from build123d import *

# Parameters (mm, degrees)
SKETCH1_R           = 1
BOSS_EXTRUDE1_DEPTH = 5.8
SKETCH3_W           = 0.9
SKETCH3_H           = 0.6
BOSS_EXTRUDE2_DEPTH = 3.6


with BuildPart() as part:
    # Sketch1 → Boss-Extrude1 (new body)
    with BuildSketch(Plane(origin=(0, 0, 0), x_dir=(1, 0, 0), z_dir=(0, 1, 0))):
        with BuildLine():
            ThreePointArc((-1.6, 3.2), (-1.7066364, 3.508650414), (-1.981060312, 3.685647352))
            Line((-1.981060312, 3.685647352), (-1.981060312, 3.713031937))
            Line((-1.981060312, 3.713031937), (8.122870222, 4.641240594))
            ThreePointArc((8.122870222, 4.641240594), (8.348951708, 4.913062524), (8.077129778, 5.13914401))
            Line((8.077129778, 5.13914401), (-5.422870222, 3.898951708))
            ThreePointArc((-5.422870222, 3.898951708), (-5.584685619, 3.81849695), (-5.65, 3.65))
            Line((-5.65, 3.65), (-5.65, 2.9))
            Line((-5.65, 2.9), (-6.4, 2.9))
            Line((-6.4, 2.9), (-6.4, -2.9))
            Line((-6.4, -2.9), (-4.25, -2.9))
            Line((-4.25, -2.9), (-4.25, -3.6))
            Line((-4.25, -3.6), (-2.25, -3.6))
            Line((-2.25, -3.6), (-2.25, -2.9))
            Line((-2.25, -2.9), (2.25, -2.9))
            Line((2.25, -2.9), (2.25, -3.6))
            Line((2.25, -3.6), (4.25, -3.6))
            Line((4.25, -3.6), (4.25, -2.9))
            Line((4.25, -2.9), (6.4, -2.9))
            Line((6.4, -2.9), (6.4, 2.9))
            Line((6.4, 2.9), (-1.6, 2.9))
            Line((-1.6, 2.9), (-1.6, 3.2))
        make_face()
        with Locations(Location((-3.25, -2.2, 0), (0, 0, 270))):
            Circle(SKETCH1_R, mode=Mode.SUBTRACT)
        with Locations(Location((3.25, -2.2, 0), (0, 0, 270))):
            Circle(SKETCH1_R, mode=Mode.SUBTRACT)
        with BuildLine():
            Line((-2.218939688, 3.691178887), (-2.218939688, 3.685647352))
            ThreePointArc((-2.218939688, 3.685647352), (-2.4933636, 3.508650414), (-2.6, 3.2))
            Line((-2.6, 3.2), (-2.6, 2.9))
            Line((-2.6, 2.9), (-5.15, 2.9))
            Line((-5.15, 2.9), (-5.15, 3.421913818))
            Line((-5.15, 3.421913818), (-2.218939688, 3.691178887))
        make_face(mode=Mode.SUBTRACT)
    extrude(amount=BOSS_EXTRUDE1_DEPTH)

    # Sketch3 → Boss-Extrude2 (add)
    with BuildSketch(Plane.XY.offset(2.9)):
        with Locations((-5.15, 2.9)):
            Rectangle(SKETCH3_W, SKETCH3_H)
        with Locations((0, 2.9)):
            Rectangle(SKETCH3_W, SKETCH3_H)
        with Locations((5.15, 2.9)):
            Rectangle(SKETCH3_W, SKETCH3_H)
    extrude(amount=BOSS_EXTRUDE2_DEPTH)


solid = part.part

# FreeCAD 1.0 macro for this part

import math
import FreeCAD as App
import Part
import Sketcher

V = App.Vector


def add_polygon(sketch, points):
    """Adds a closed chain of lines whose ends are joined by coincident constraints."""
    first, n = sketch.GeometryCount, len(points)
    for a, b in zip(points, points[1:] + points[:1]):
        sketch.addGeometry(Part.LineSegment(App.Vector(*a, 0), App.Vector(*b, 0)), False)
    for i in range(n):
        sketch.addConstraint(Sketcher.Constraint("Coincident", first + i, 2, first + (i + 1) % n, 1))

doc = App.newDocument("Part")
body = doc.addObject("PartDesign::Body", "Body")

# Sketch on XZ plane
sketch1 = body.newObject("Sketcher::SketchObject", "Sketch")
sketch1.AttachmentSupport = (doc.getObject("XZ_Plane"), [""])
sketch1.MapMode = "FlatFace"
sketch1.addGeometry(Part.ArcOfCircle(Part.Circle(V(-2.1, -3.2, 0), V(0, 0, 1), 0.5), math.radians(-76), math.radians(0)), False)
sketch1.addGeometry(Part.LineSegment(V(-1.981, -3.686, 0), V(-1.981, -3.713, 0)), False)
sketch1.addGeometry(Part.LineSegment(V(-1.981, -3.713, 0), V(8.123, -4.641, 0)), False)
sketch1.addGeometry(Part.ArcOfCircle(Part.Circle(V(8.1, -4.89, 0), V(0, 0, 1), 0.25), math.radians(-95), math.radians(85)), False)
sketch1.addGeometry(Part.LineSegment(V(8.077, -5.139, 0), V(-5.423, -3.899, 0)), False)
sketch1.addGeometry(Part.ArcOfCircle(Part.Circle(V(-5.4, -3.65, 0), V(0, 0, 1), 0.25), math.radians(180), math.radians(265)), False)
sketch1.addGeometry(Part.LineSegment(V(-5.65, -3.65, 0), V(-5.65, -2.9, 0)), False)
sketch1.addGeometry(Part.LineSegment(V(-5.65, -2.9, 0), V(-6.4, -2.9, 0)), False)
sketch1.addGeometry(Part.LineSegment(V(-6.4, -2.9, 0), V(-6.4, 2.9, 0)), False)
sketch1.addGeometry(Part.LineSegment(V(-6.4, 2.9, 0), V(-4.25, 2.9, 0)), False)
sketch1.addGeometry(Part.LineSegment(V(-4.25, 2.9, 0), V(-4.25, 3.6, 0)), False)
sketch1.addGeometry(Part.LineSegment(V(-4.25, 3.6, 0), V(-2.25, 3.6, 0)), False)
sketch1.addGeometry(Part.LineSegment(V(-2.25, 3.6, 0), V(-2.25, 2.9, 0)), False)
sketch1.addGeometry(Part.LineSegment(V(-2.25, 2.9, 0), V(2.25, 2.9, 0)), False)
sketch1.addGeometry(Part.LineSegment(V(2.25, 2.9, 0), V(2.25, 3.6, 0)), False)
sketch1.addGeometry(Part.LineSegment(V(2.25, 3.6, 0), V(4.25, 3.6, 0)), False)
sketch1.addGeometry(Part.LineSegment(V(4.25, 3.6, 0), V(4.25, 2.9, 0)), False)
sketch1.addGeometry(Part.LineSegment(V(4.25, 2.9, 0), V(6.4, 2.9, 0)), False)
sketch1.addGeometry(Part.LineSegment(V(6.4, 2.9, 0), V(6.4, -2.9, 0)), False)
sketch1.addGeometry(Part.LineSegment(V(6.4, -2.9, 0), V(-1.6, -2.9, 0)), False)
sketch1.addGeometry(Part.LineSegment(V(-1.6, -2.9, 0), V(-1.6, -3.2, 0)), False)
sketch1.addGeometry(Part.Circle(V(-3.25, 2.2, 0), V(0, 0, 1), 1), False)
sketch1.addGeometry(Part.Circle(V(3.25, 2.2, 0), V(0, 0, 1), 1), False)
sketch1.addGeometry(Part.LineSegment(V(-5.15, -3.422, 0), V(-2.219, -3.691, 0)), False)
sketch1.addGeometry(Part.LineSegment(V(-2.219, -3.691, 0), V(-2.219, -3.686, 0)), False)
sketch1.addGeometry(Part.ArcOfCircle(Part.Circle(V(-2.1, -3.2, 0), V(0, 0, 1), 0.5), math.radians(180), math.radians(256)), False)
sketch1.addGeometry(Part.LineSegment(V(-2.6, -3.2, 0), V(-2.6, -2.9, 0)), False)
sketch1.addGeometry(Part.LineSegment(V(-2.6, -2.9, 0), V(-5.15, -2.9, 0)), False)
sketch1.addGeometry(Part.LineSegment(V(-5.15, -2.9, 0), V(-5.15, -3.422, 0)), False)
sketch1.addConstraint(Sketcher.Constraint("Coincident", 0, 1, 1, 1))
sketch1.addConstraint(Sketcher.Constraint("Coincident", 1, 2, 2, 1))
sketch1.addConstraint(Sketcher.Constraint("Tangent", 2, 2, 3, 2))
sketch1.addConstraint(Sketcher.Constraint("Tangent", 3, 1, 4, 1))
sketch1.addConstraint(Sketcher.Constraint("Tangent", 4, 2, 5, 2))
sketch1.addConstraint(Sketcher.Constraint("Tangent", 5, 1, 6, 1))
sketch1.addConstraint(Sketcher.Constraint("Coincident", 6, 2, 7, 1))
sketch1.addConstraint(Sketcher.Constraint("Coincident", 7, 2, 8, 1))
sketch1.addConstraint(Sketcher.Constraint("Coincident", 8, 2, 9, 1))
sketch1.addConstraint(Sketcher.Constraint("Coincident", 9, 2, 10, 1))
sketch1.addConstraint(Sketcher.Constraint("Coincident", 10, 2, 11, 1))
sketch1.addConstraint(Sketcher.Constraint("Coincident", 11, 2, 12, 1))
sketch1.addConstraint(Sketcher.Constraint("Coincident", 12, 2, 13, 1))
sketch1.addConstraint(Sketcher.Constraint("Coincident", 13, 2, 14, 1))
sketch1.addConstraint(Sketcher.Constraint("Coincident", 14, 2, 15, 1))
sketch1.addConstraint(Sketcher.Constraint("Coincident", 15, 2, 16, 1))
sketch1.addConstraint(Sketcher.Constraint("Coincident", 16, 2, 17, 1))
sketch1.addConstraint(Sketcher.Constraint("Coincident", 17, 2, 18, 1))
sketch1.addConstraint(Sketcher.Constraint("Coincident", 18, 2, 19, 1))
sketch1.addConstraint(Sketcher.Constraint("Coincident", 19, 2, 20, 1))
sketch1.addConstraint(Sketcher.Constraint("Tangent", 20, 2, 0, 2))
sketch1.addConstraint(Sketcher.Constraint("Coincident", 23, 2, 24, 1))
sketch1.addConstraint(Sketcher.Constraint("Coincident", 24, 2, 25, 2))
sketch1.addConstraint(Sketcher.Constraint("Tangent", 25, 1, 26, 1))
sketch1.addConstraint(Sketcher.Constraint("Coincident", 26, 2, 27, 1))
sketch1.addConstraint(Sketcher.Constraint("Coincident", 27, 2, 28, 1))
sketch1.addConstraint(Sketcher.Constraint("Coincident", 28, 2, 23, 1))
sketch1.addConstraint(Sketcher.Constraint("Vertical", 1))
sketch1.addConstraint(Sketcher.Constraint("Vertical", 6))
sketch1.addConstraint(Sketcher.Constraint("Horizontal", 7))
sketch1.addConstraint(Sketcher.Constraint("Vertical", 8))
sketch1.addConstraint(Sketcher.Constraint("Horizontal", 9))
sketch1.addConstraint(Sketcher.Constraint("Vertical", 10))
sketch1.addConstraint(Sketcher.Constraint("Horizontal", 11))
sketch1.addConstraint(Sketcher.Constraint("Vertical", 12))
sketch1.addConstraint(Sketcher.Constraint("Horizontal", 13))
sketch1.addConstraint(Sketcher.Constraint("Vertical", 14))
sketch1.addConstraint(Sketcher.Constraint("Horizontal", 15))
sketch1.addConstraint(Sketcher.Constraint("Vertical", 16))
sketch1.addConstraint(Sketcher.Constraint("Horizontal", 17))
sketch1.addConstraint(Sketcher.Constraint("Vertical", 18))
sketch1.addConstraint(Sketcher.Constraint("Horizontal", 19))
sketch1.addConstraint(Sketcher.Constraint("Vertical", 20))
sketch1.addConstraint(Sketcher.Constraint("Vertical", 24))
sketch1.addConstraint(Sketcher.Constraint("Vertical", 26))
sketch1.addConstraint(Sketcher.Constraint("Horizontal", 27))
sketch1.addConstraint(Sketcher.Constraint("Vertical", 28))
sketch1.addConstraint(Sketcher.Constraint("Coincident", 25, 3, 0, 3))
sketch1.addConstraint(Sketcher.Constraint("Equal", 3, 5))
sketch1.addConstraint(Sketcher.Constraint("Equal", 21, 22))
sketch1.addConstraint(Sketcher.Constraint("Equal", 0, 25))
sketch1.addConstraint(Sketcher.Constraint("Symmetric", 7, 2, 17, 2, -1, 1))
sketch1.addConstraint(Sketcher.Constraint("Symmetric", 21, 3, 22, 3, -2))
sketch1.addConstraint(Sketcher.Constraint("Symmetric", 11, 2, 14, 2, -2))
sketch1.addConstraint(Sketcher.Constraint("Symmetric", 9, 2, 16, 2, -2))
sketch1.addConstraint(Sketcher.Constraint("Parallel", 2, 4))
sketch1.addConstraint(Sketcher.Constraint("Parallel", 4, 23))
sketch1.addConstraint(Sketcher.Constraint("Horizontal", 9, 2, 12, 2))
sketch1.addConstraint(Sketcher.Constraint("Horizontal", 7, 2, 18, 2))
sketch1.addConstraint(Sketcher.Constraint("Horizontal", 0, 1, 24, 2))
sketch1.addConstraint(Sketcher.Constraint("Horizontal", 19, 2, 26, 2))
sketch1.addConstraint(Sketcher.Constraint("Equal", 7, 6))
sketch1.addConstraint(Sketcher.Constraint("Diameter", 21, 2.0))
sketch1.addConstraint(Sketcher.Constraint("Radius", 0, 0.5))
sketch1.addConstraint(Sketcher.Constraint("DistanceX", 11, 1, 11, 2, 2.0))
sketch1.addConstraint(Sketcher.Constraint("DistanceX", 19, 2, 19, 1, 8.0))
sketch1.addConstraint(Sketcher.Constraint("Radius", 3, 0.25))
sketch1.addConstraint(Sketcher.Constraint("DistanceX", 13, 1, 13, 2, 4.5))
sketch1.addConstraint(Sketcher.Constraint("DistanceY", 8, 1, 8, 2, 5.8))
sketch1.addConstraint(Sketcher.Constraint("DistanceY", 10, 1, 10, 2, 0.7))
sketch1.addConstraint(Sketcher.Constraint("DistanceY", 20, 2, 20, 1, 0.3))
sketch1.addConstraint(Sketcher.Constraint("DistanceX", 7, 2, 5, 3, 1.0))
sketch1.addConstraint(Sketcher.Constraint("DistanceX", 9, 2, 21, 3, 1.0))
sketch1.addConstraint(Sketcher.Constraint("DistanceX", 9, 1, 9, 2, 2.15))
sketch1.addConstraint(Sketcher.Constraint("DistanceX", 27, 2, 27, 1, 2.55))
sketch1.addConstraint(Sketcher.Constraint("DistanceX", -1, 1, 3, 3, 8.1))
sketch1.addConstraint(Sketcher.Constraint("DistanceY", -1, 1, 21, 3, 2.2))
sketch1.addConstraint(Sketcher.Constraint("DistanceY", 24, 1, 24, 2, 0.005532))
sketch1.addConstraint(Sketcher.Constraint("DistanceY", 1, 2, 1, 1, 0.027385))
sketch1.addConstraint(Sketcher.Constraint("DistanceY", 28, 2, 28, 1, 0.521914))
pad1 = body.newObject("PartDesign::Pad", "Pad")
pad1.Profile = sketch1
pad1.Length = 5.8
pad1.Reversed = True

# Sketch on XY plane
sketch2 = body.newObject("Sketcher::SketchObject", "Sketch001")
sketch2.AttachmentSupport = (doc.getObject("XY_Plane"), [""])
sketch2.MapMode = "FlatFace"
sketch2.AttachmentOffset = App.Placement(V(0, 0, 2.9), App.Rotation())
add_polygon(sketch2, [(-5.6, 3.2), (-5.6, 2.6), (-4.7, 2.6), (-4.7, 3.2)])  # lines 0-3
add_polygon(sketch2, [(-0.5, 3.2), (-0.5, 2.6), (0.5, 2.6), (0.5, 3.2)])  # lines 4-7
add_polygon(sketch2, [(4.7, 3.2), (4.7, 2.6), (5.6, 2.6), (5.6, 3.2)])  # lines 8-11
sketch2.addConstraint(Sketcher.Constraint("Vertical", 0))
sketch2.addConstraint(Sketcher.Constraint("Horizontal", 1))
sketch2.addConstraint(Sketcher.Constraint("Vertical", 2))
sketch2.addConstraint(Sketcher.Constraint("Horizontal", 3))
sketch2.addConstraint(Sketcher.Constraint("Vertical", 4))
sketch2.addConstraint(Sketcher.Constraint("Horizontal", 5))
sketch2.addConstraint(Sketcher.Constraint("Vertical", 6))
sketch2.addConstraint(Sketcher.Constraint("Horizontal", 7))
sketch2.addConstraint(Sketcher.Constraint("Vertical", 8))
sketch2.addConstraint(Sketcher.Constraint("Horizontal", 9))
sketch2.addConstraint(Sketcher.Constraint("Vertical", 10))
sketch2.addConstraint(Sketcher.Constraint("Horizontal", 11))
sketch2.addConstraint(Sketcher.Constraint("Symmetric", 1, 2, 8, 2, -2))
sketch2.addConstraint(Sketcher.Constraint("Symmetric", 3, 2, 10, 2, -2))
sketch2.addConstraint(Sketcher.Constraint("Horizontal", 1, 2, 4, 2))
sketch2.addConstraint(Sketcher.Constraint("Horizontal", 3, 2, 6, 2))
sketch2.addConstraint(Sketcher.Constraint("Equal", 3, 5))
sketch2.addConstraint(Sketcher.Constraint("DistanceX", 1, 1, 1, 2, 0.9))
sketch2.addConstraint(Sketcher.Constraint("DistanceY", 0, 2, 0, 1, 0.6))
sketch2.addConstraint(Sketcher.Constraint("DistanceX", 0, 2, -1, 1, 5.6))
sketch2.addConstraint(Sketcher.Constraint("DistanceY", -1, 1, 0, 2, 2.6))
sketch2.addConstraint(Sketcher.Constraint("DistanceX", 4, 2, -1, 1, 0.45))
pad2 = body.newObject("PartDesign::Pad", "Pad001")
pad2.Profile = sketch2
pad2.Length = 3.6

doc.recompute()
